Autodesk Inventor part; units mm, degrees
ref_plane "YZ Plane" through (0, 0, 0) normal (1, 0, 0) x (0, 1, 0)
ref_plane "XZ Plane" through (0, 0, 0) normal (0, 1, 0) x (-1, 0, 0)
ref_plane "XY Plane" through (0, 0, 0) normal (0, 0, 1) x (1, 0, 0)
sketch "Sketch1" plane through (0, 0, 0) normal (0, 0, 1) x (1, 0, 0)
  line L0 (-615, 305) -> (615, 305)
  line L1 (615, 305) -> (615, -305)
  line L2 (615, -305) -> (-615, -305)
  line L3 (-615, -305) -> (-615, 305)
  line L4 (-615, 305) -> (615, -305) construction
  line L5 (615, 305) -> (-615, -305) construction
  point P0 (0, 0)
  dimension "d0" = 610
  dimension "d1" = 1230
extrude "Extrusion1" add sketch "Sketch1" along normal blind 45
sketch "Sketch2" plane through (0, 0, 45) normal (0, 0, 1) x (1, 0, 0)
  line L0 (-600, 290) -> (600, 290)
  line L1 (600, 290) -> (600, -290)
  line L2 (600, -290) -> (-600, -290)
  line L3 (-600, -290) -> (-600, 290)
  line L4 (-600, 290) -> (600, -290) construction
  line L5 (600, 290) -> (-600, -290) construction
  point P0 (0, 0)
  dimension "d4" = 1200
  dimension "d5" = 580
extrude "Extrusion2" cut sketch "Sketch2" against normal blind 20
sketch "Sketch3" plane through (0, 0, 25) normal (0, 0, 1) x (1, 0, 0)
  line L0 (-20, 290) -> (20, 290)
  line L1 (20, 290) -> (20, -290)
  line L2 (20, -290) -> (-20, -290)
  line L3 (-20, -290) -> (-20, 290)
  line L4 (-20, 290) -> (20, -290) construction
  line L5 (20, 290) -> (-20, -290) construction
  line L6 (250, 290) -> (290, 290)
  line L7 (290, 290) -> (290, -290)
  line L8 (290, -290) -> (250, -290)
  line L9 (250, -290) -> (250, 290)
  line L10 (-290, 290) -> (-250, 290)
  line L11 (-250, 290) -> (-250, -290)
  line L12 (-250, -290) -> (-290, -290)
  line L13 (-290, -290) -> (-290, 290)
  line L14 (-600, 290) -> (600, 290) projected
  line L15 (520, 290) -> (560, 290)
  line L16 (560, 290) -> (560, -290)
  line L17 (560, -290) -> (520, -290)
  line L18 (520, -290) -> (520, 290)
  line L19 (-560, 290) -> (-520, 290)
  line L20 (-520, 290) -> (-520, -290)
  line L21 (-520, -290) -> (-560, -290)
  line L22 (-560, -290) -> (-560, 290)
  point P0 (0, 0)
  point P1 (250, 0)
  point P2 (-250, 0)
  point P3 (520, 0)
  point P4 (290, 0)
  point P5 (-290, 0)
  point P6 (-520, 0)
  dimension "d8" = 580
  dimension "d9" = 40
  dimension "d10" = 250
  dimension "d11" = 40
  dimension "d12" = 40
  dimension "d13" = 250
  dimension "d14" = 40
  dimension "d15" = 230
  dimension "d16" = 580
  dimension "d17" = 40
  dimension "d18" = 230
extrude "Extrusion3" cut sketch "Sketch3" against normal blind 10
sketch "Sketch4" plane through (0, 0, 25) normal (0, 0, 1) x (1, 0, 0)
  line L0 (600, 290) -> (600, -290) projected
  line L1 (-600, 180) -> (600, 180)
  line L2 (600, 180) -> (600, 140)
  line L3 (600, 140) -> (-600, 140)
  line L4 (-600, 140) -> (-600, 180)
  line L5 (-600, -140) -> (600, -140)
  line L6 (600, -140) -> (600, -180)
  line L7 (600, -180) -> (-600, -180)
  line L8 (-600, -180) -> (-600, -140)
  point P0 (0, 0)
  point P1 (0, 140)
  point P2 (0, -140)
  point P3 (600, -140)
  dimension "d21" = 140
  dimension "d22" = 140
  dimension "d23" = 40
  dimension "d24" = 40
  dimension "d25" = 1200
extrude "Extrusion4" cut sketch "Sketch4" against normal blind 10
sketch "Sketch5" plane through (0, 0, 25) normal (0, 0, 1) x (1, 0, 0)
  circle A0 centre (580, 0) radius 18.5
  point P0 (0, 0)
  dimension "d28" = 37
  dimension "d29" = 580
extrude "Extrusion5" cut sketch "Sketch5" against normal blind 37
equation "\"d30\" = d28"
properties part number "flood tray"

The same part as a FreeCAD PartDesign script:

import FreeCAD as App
import Part
import Sketcher

doc = App.newDocument("Part")
body = doc.addObject("PartDesign::Body", "Body")

# Sketch on XY plane
sketch1 = body.newObject("Sketcher::SketchObject", "Sketch")
sketch1.AttachmentSupport = (doc.getObject("XY_Plane"), [""])
sketch1.MapMode = "FlatFace"
sketch1.addGeometry([
    Part.LineSegment(App.Vector(615, 305, 0), App.Vector(-615, 305, 0)),
    Part.LineSegment(App.Vector(-615, 305, 0), App.Vector(-615, -305, 0)),
    Part.LineSegment(App.Vector(-615, -305, 0), App.Vector(615, -305, 0)),
    Part.LineSegment(App.Vector(615, -305, 0), App.Vector(615, 305, 0)),
], False)
sketch1.addConstraint([
    Sketcher.Constraint("Coincident", 0, 2, 1, 1),
    Sketcher.Constraint("Coincident", 1, 2, 2, 1),
    Sketcher.Constraint("Coincident", 2, 2, 3, 1),
    Sketcher.Constraint("Coincident", 3, 2, 0, 1),
    Sketcher.Constraint("Horizontal", 0),
    Sketcher.Constraint("Vertical", 1),
    Sketcher.Constraint("Horizontal", 2),
    Sketcher.Constraint("Vertical", 3),
    Sketcher.Constraint("Symmetric", 0, 2, 2, 2, -1, 1),
    Sketcher.Constraint("DistanceX", 0, 2, 0, 1, 1230.0),
    Sketcher.Constraint("DistanceY", 1, 2, 1, 1, 610.0),
])
pad1 = body.newObject("PartDesign::Pad", "Pad")
pad1.Profile = sketch1
pad1.Length = 45

# Sketch on XY plane
sketch2 = body.newObject("Sketcher::SketchObject", "Sketch001")
sketch2.AttachmentSupport = (doc.getObject("XY_Plane"), [""])
sketch2.MapMode = "FlatFace"
sketch2.AttachmentOffset = App.Placement(App.Vector(0, 0, 45), App.Rotation())
sketch2.addGeometry([
    Part.LineSegment(App.Vector(600, 290, 0), App.Vector(-600, 290, 0)),
    Part.LineSegment(App.Vector(-600, 290, 0), App.Vector(-600, -290, 0)),
    Part.LineSegment(App.Vector(-600, -290, 0), App.Vector(600, -290, 0)),
    Part.LineSegment(App.Vector(600, -290, 0), App.Vector(600, 290, 0)),
], False)
sketch2.addConstraint([
    Sketcher.Constraint("Coincident", 0, 2, 1, 1),
    Sketcher.Constraint("Coincident", 1, 2, 2, 1),
    Sketcher.Constraint("Coincident", 2, 2, 3, 1),
    Sketcher.Constraint("Coincident", 3, 2, 0, 1),
    Sketcher.Constraint("Horizontal", 0),
    Sketcher.Constraint("Vertical", 1),
    Sketcher.Constraint("Horizontal", 2),
    Sketcher.Constraint("Vertical", 3),
    Sketcher.Constraint("Symmetric", 0, 2, 2, 2, -1, 1),
    Sketcher.Constraint("DistanceX", 0, 2, 0, 1, 1200.0),
    Sketcher.Constraint("DistanceY", 1, 2, 1, 1, 580.0),
])
pocket1 = body.newObject("PartDesign::Pocket", "Pocket")
pocket1.Profile = sketch2
pocket1.Length = 20

# Sketch on XY plane
sketch3 = body.newObject("Sketcher::SketchObject", "Sketch002")
sketch3.AttachmentSupport = (doc.getObject("XY_Plane"), [""])
sketch3.MapMode = "FlatFace"
sketch3.AttachmentOffset = App.Placement(App.Vector(0, 0, 25), App.Rotation())
sketch3.addGeometry([
    Part.LineSegment(App.Vector(560, 290, 0), App.Vector(520, 290, 0)),  # 0
    Part.LineSegment(App.Vector(520, 290, 0), App.Vector(520, -290, 0)),  # 1
    Part.LineSegment(App.Vector(520, -290, 0), App.Vector(560, -290, 0)),  # 2
    Part.LineSegment(App.Vector(560, -290, 0), App.Vector(560, 290, 0)),  # 3
    Part.LineSegment(App.Vector(290, 290, 0), App.Vector(250, 290, 0)),  # 4
    Part.LineSegment(App.Vector(250, 290, 0), App.Vector(250, -290, 0)),  # 5
    Part.LineSegment(App.Vector(250, -290, 0), App.Vector(290, -290, 0)),  # 6
    Part.LineSegment(App.Vector(290, -290, 0), App.Vector(290, 290, 0)),  # 7
    Part.LineSegment(App.Vector(20, 290, 0), App.Vector(-20, 290, 0)),  # 8
    Part.LineSegment(App.Vector(-20, 290, 0), App.Vector(-20, -290, 0)),  # 9
    Part.LineSegment(App.Vector(-20, -290, 0), App.Vector(20, -290, 0)),  # 10
    Part.LineSegment(App.Vector(20, -290, 0), App.Vector(20, 290, 0)),  # 11
    Part.LineSegment(App.Vector(-520, -290, 0), App.Vector(-520, 290, 0)),  # 12
    Part.LineSegment(App.Vector(-520, 290, 0), App.Vector(-560, 290, 0)),  # 13
    Part.LineSegment(App.Vector(-560, 290, 0), App.Vector(-560, -290, 0)),  # 14
    Part.LineSegment(App.Vector(-560, -290, 0), App.Vector(-520, -290, 0)),  # 15
    Part.LineSegment(App.Vector(-250, -290, 0), App.Vector(-250, 290, 0)),  # 16
    Part.LineSegment(App.Vector(-250, 290, 0), App.Vector(-290, 290, 0)),  # 17
    Part.LineSegment(App.Vector(-290, 290, 0), App.Vector(-290, -290, 0)),  # 18
    Part.LineSegment(App.Vector(-290, -290, 0), App.Vector(-250, -290, 0)),  # 19
], False)
sketch3.addConstraint([
    Sketcher.Constraint("Coincident", 0, 2, 1, 1),
    Sketcher.Constraint("Coincident", 1, 2, 2, 1),
    Sketcher.Constraint("Coincident", 2, 2, 3, 1),
    Sketcher.Constraint("Coincident", 3, 2, 0, 1),
    Sketcher.Constraint("Coincident", 4, 2, 5, 1),
    Sketcher.Constraint("Coincident", 5, 2, 6, 1),
    Sketcher.Constraint("Coincident", 6, 2, 7, 1),
    Sketcher.Constraint("Coincident", 7, 2, 4, 1),
    Sketcher.Constraint("Coincident", 8, 2, 9, 1),
    Sketcher.Constraint("Coincident", 9, 2, 10, 1),
    Sketcher.Constraint("Coincident", 10, 2, 11, 1),
    Sketcher.Constraint("Coincident", 11, 2, 8, 1),
    Sketcher.Constraint("Coincident", 12, 2, 13, 1),
    Sketcher.Constraint("Coincident", 13, 2, 14, 1),
    Sketcher.Constraint("Coincident", 14, 2, 15, 1),
    Sketcher.Constraint("Coincident", 15, 2, 12, 1),
    Sketcher.Constraint("Coincident", 16, 2, 17, 1),
    Sketcher.Constraint("Coincident", 17, 2, 18, 1),
    Sketcher.Constraint("Coincident", 18, 2, 19, 1),
    Sketcher.Constraint("Coincident", 19, 2, 16, 1),
    Sketcher.Constraint("Horizontal", 0),
    Sketcher.Constraint("Vertical", 1),
    Sketcher.Constraint("Horizontal", 2),
    Sketcher.Constraint("Vertical", 3),
    Sketcher.Constraint("Horizontal", 4),
    Sketcher.Constraint("Vertical", 5),
    Sketcher.Constraint("Horizontal", 6),
    Sketcher.Constraint("Vertical", 7),
    Sketcher.Constraint("Horizontal", 8),
    Sketcher.Constraint("Vertical", 9),
    Sketcher.Constraint("Horizontal", 10),
    Sketcher.Constraint("Vertical", 11),
    Sketcher.Constraint("Vertical", 12),
    Sketcher.Constraint("Horizontal", 13),
    Sketcher.Constraint("Vertical", 14),
    Sketcher.Constraint("Horizontal", 15),
    Sketcher.Constraint("Vertical", 16),
    Sketcher.Constraint("Horizontal", 17),
    Sketcher.Constraint("Vertical", 18),
    Sketcher.Constraint("Horizontal", 19),
    Sketcher.Constraint("Symmetric", 8, 2, 10, 2, -1, 1),
    Sketcher.Constraint("Symmetric", 1, 2, 12, 2, -1, 1),
    Sketcher.Constraint("Symmetric", 3, 2, 14, 2, -1, 1),
    Sketcher.Constraint("Symmetric", 5, 2, 16, 2, -1, 1),
    Sketcher.Constraint("Symmetric", 7, 2, 18, 2, -1, 1),
    Sketcher.Constraint("Horizontal", 3, 2, 4, 2),
    Sketcher.Constraint("Horizontal", 2, 2, 5, 2),
    Sketcher.Constraint("Horizontal", 7, 2, 8, 2),
    Sketcher.Constraint("Horizontal", 6, 2, 9, 2),
    Sketcher.Constraint("Equal", 2, 4),
    Sketcher.Constraint("Equal", 6, 8),
    Sketcher.Constraint("DistanceX", 0, 2, 0, 1, 40.0),
    Sketcher.Constraint("DistanceY", 1, 2, 1, 1, 580.0),
    Sketcher.Constraint("DistanceX", -1, 1, 4, 2, 250.0),
    Sketcher.Constraint("DistanceX", 6, 2, 1, 2, 230.0),
])
pocket2 = body.newObject("PartDesign::Pocket", "Pocket001")
pocket2.Profile = sketch3
pocket2.Length = 10

# Sketch on XY plane
sketch4 = body.newObject("Sketcher::SketchObject", "Sketch003")
sketch4.AttachmentSupport = (doc.getObject("XY_Plane"), [""])
sketch4.MapMode = "FlatFace"
sketch4.AttachmentOffset = App.Placement(App.Vector(0, 0, 25), App.Rotation())
sketch4.addGeometry([
    Part.LineSegment(App.Vector(600, -180, 0), App.Vector(600, -140, 0)),  # 0
    Part.LineSegment(App.Vector(600, -140, 0), App.Vector(-600, -140, 0)),  # 1
    Part.LineSegment(App.Vector(-600, -140, 0), App.Vector(-600, -180, 0)),  # 2
    Part.LineSegment(App.Vector(-600, -180, 0), App.Vector(600, -180, 0)),  # 3
    Part.LineSegment(App.Vector(600, 140, 0), App.Vector(600, 180, 0)),  # 4
    Part.LineSegment(App.Vector(600, 180, 0), App.Vector(-600, 180, 0)),  # 5
    Part.LineSegment(App.Vector(-600, 180, 0), App.Vector(-600, 140, 0)),  # 6
    Part.LineSegment(App.Vector(-600, 140, 0), App.Vector(600, 140, 0)),  # 7
], False)
sketch4.addConstraint([
    Sketcher.Constraint("Coincident", 0, 2, 1, 1),
    Sketcher.Constraint("Coincident", 1, 2, 2, 1),
    Sketcher.Constraint("Coincident", 2, 2, 3, 1),
    Sketcher.Constraint("Coincident", 3, 2, 0, 1),
    Sketcher.Constraint("Coincident", 4, 2, 5, 1),
    Sketcher.Constraint("Coincident", 5, 2, 6, 1),
    Sketcher.Constraint("Coincident", 6, 2, 7, 1),
    Sketcher.Constraint("Coincident", 7, 2, 4, 1),
    Sketcher.Constraint("Vertical", 0),
    Sketcher.Constraint("Horizontal", 1),
    Sketcher.Constraint("Vertical", 2),
    Sketcher.Constraint("Horizontal", 3),
    Sketcher.Constraint("Vertical", 4),
    Sketcher.Constraint("Horizontal", 5),
    Sketcher.Constraint("Vertical", 6),
    Sketcher.Constraint("Horizontal", 7),
    Sketcher.Constraint("Symmetric", 2, 2, 4, 2, -1, 1),
    Sketcher.Constraint("Symmetric", 0, 2, 6, 2, -1, 1),
    Sketcher.Constraint("Vertical", 3, 2, 4, 2),
    Sketcher.Constraint("DistanceX", 1, 2, 1, 1, 1200.0),
    Sketcher.Constraint("DistanceY", 0, 1, 0, 2, 40.0),
    Sketcher.Constraint("DistanceY", 0, 2, -1, 1, 140.0),
])
pocket3 = body.newObject("PartDesign::Pocket", "Pocket002")
pocket3.Profile = sketch4
pocket3.Length = 10

# Sketch on XY plane
sketch5 = body.newObject("Sketcher::SketchObject", "Sketch004")
sketch5.AttachmentSupport = (doc.getObject("XY_Plane"), [""])
sketch5.MapMode = "FlatFace"
sketch5.AttachmentOffset = App.Placement(App.Vector(0, 0, 25), App.Rotation())
sketch5.addGeometry(Part.Circle(App.Vector(580, 0, 0), App.Vector(0, 0, 1), 18), False)
sketch5.addConstraint([
    Sketcher.Constraint("PointOnObject", 0, 3, -1),
    Sketcher.Constraint("Diameter", 0, 37.0),
    Sketcher.Constraint("DistanceX", -1, 1, 0, 3, 580.0),
])
pocket4 = body.newObject("PartDesign::Pocket", "Pocket003")
pocket4.Profile = sketch5
pocket4.Length = 37

doc.recompute()
